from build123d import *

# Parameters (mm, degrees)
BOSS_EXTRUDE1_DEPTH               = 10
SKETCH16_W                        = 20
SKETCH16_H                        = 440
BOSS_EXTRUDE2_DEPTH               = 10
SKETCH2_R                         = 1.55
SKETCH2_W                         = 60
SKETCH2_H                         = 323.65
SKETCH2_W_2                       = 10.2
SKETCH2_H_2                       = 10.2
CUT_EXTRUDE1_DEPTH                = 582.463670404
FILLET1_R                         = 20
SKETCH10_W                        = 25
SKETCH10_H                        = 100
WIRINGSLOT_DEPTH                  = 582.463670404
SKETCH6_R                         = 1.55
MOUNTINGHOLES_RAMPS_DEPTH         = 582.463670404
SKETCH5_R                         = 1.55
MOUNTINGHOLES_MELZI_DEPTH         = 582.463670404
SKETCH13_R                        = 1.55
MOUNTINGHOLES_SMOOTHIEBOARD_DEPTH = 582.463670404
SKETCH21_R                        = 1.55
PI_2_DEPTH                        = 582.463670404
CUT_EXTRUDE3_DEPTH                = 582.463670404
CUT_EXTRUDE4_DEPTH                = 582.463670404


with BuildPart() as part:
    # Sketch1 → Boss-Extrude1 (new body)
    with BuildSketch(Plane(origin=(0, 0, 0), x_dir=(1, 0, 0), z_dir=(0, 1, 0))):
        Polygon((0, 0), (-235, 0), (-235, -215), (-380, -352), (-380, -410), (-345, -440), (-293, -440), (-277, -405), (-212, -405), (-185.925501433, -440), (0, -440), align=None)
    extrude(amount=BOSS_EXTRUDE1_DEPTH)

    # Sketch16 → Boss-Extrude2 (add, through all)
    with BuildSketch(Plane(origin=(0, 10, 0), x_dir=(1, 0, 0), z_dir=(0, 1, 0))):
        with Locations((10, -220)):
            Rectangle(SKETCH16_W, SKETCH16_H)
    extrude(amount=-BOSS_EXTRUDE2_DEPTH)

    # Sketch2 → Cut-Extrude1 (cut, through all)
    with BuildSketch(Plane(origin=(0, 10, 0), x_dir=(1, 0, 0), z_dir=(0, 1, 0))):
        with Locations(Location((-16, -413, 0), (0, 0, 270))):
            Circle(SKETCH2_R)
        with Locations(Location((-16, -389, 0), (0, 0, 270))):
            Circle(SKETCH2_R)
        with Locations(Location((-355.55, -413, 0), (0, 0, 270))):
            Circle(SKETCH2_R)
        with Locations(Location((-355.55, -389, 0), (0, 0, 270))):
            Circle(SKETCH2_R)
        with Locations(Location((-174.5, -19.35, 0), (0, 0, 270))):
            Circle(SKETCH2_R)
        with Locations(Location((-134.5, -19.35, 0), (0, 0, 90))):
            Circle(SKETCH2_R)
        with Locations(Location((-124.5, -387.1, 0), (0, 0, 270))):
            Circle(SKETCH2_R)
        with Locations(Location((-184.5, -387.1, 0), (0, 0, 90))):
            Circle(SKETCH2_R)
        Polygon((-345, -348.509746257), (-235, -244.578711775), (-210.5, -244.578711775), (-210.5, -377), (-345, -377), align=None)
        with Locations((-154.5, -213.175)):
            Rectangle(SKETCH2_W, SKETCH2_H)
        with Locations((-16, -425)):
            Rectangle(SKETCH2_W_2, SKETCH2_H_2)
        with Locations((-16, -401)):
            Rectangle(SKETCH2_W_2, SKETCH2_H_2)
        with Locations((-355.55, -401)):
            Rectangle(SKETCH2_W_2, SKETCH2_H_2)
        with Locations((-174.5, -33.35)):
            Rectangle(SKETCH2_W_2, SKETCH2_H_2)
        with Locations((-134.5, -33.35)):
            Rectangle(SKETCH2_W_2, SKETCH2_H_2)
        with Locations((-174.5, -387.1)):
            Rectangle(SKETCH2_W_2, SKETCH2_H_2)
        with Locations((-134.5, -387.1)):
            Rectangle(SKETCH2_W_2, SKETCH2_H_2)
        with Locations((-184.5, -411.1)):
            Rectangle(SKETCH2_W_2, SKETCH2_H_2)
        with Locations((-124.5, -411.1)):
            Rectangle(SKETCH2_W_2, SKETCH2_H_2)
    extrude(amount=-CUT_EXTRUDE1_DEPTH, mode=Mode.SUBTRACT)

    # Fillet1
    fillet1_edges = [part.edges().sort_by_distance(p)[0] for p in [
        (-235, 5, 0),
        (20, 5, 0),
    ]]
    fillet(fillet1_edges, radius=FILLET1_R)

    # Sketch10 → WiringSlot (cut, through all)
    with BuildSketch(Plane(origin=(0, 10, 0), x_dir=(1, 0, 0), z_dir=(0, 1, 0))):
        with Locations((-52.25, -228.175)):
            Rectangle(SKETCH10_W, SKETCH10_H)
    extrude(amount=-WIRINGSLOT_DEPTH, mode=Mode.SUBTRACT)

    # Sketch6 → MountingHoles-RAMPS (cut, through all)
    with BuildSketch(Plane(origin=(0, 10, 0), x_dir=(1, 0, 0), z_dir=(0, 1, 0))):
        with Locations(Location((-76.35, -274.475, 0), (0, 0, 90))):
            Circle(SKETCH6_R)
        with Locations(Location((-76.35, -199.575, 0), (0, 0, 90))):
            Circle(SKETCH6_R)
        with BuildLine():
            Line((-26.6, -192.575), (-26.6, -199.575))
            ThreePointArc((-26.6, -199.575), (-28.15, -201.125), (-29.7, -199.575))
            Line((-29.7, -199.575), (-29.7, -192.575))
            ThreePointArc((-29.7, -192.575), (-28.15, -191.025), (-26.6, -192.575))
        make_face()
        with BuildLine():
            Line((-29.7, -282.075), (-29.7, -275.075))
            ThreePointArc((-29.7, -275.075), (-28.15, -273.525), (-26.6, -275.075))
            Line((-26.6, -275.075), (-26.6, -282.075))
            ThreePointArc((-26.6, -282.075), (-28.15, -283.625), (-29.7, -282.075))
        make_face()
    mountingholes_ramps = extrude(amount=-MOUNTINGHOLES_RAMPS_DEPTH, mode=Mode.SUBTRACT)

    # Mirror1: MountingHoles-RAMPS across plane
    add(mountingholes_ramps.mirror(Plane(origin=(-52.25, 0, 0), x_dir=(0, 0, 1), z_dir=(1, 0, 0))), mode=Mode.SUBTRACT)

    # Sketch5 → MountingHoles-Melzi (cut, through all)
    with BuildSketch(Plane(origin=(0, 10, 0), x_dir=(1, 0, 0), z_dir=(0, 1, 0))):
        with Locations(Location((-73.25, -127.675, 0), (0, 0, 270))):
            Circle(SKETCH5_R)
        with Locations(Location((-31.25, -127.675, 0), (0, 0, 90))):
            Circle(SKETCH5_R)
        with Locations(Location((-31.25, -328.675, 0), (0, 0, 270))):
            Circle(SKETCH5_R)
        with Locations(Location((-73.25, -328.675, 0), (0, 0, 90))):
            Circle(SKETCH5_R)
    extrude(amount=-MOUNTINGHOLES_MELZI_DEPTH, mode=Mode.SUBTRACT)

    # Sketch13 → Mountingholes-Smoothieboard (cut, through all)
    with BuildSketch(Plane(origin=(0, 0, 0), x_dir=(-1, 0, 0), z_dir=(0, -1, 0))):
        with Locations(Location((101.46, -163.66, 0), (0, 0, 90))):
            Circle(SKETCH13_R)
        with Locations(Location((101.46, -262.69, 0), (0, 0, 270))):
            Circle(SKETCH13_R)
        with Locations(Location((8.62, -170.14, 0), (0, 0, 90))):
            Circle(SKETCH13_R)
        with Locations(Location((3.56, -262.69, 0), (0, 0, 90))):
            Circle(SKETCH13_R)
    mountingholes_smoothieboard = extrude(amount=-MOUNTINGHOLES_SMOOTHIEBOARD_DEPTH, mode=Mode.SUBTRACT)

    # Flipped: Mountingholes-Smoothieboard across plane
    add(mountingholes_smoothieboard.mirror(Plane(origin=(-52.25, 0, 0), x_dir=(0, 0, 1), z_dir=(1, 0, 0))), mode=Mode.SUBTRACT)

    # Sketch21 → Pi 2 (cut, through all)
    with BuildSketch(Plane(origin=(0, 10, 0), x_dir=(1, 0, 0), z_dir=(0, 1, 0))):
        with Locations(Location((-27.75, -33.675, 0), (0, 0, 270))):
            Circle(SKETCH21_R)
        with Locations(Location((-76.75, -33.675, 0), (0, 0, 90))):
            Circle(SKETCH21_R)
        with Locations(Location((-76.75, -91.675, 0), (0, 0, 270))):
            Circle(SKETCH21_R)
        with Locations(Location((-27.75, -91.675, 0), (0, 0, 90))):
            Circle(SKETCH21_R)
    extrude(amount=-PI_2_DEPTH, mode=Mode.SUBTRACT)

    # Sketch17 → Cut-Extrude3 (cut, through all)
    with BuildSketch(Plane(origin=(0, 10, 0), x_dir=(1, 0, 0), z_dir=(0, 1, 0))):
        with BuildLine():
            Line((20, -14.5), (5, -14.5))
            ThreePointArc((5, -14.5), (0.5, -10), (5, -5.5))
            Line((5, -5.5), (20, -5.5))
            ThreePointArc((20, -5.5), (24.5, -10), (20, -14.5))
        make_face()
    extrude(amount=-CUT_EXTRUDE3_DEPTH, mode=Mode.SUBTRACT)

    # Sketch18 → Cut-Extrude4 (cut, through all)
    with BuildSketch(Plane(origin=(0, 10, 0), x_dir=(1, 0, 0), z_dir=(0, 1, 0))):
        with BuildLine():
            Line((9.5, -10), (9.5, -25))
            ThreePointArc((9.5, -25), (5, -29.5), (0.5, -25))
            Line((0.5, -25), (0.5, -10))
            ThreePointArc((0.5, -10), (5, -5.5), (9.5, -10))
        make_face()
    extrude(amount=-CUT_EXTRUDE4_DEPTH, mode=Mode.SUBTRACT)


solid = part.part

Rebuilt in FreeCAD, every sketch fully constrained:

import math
import FreeCAD as App
import Part
import Sketcher


def edges_at(feature, points):
    """Names of the edges that pass closest to the given points."""
    edges = feature.Shape.Edges
    near = lambda p: min(range(len(edges)), key=lambda i: edges[i].distToShape(Part.Vertex(*p))[0])
    return sorted({f"Edge{near(p) + 1}" for p in points})


def add_polygon(sketch, points):
    """Adds a closed chain of lines whose ends are joined by coincident constraints."""
    first, n = sketch.GeometryCount, len(points)
    for a, b in zip(points, points[1:] + points[:1]):
        sketch.addGeometry(Part.LineSegment(App.Vector(*a, 0), App.Vector(*b, 0)), False)
    for i in range(n):
        sketch.addConstraint(Sketcher.Constraint("Coincident", first + i, 2, first + (i + 1) % n, 1))

doc = App.newDocument("Part")
body = doc.addObject("PartDesign::Body", "Body")

# Sketch on XZ plane
sketch1 = doc.addObject("Sketcher::SketchObject", "Sketch")
body.addObject(sketch1)
sketch1.AttachmentSupport = (doc.XZ_Plane, [""])
sketch1.MapMode = "FlatFace"
add_polygon(sketch1, [(0, 0), (-235, 0), (-235, 215), (-380, 352), (-380, 410), (-345, 440), (-293, 440), (-277, 405), (-212, 405), (-185.925501, 440), (0, 440)])  # lines 0-10
sketch1.addConstraint(Sketcher.Constraint("Horizontal", 0))
sketch1.addConstraint(Sketcher.Constraint("Vertical", 1))
sketch1.addConstraint(Sketcher.Constraint("Vertical", 3))
sketch1.addConstraint(Sketcher.Constraint("Horizontal", 5))
sketch1.addConstraint(Sketcher.Constraint("Horizontal", 7))
sketch1.addConstraint(Sketcher.Constraint("Horizontal", 9))
sketch1.addConstraint(Sketcher.Constraint("Vertical", 10))
sketch1.addConstraint(Sketcher.Constraint("Coincident", 10, 2, -1, 1))
sketch1.addConstraint(Sketcher.Constraint("Horizontal", 5, 2, 8, 2))
sketch1.addConstraint(Sketcher.Constraint("DistanceX", 0, 2, 0, 1, 235.0))
sketch1.addConstraint(Sketcher.Constraint("DistanceX", 5, 1, 5, 2, 52.0))
sketch1.addConstraint(Sketcher.Constraint("DistanceX", 7, 1, 7, 2, 65.0))
sketch1.addConstraint(Sketcher.Constraint("DistanceY", 1, 1, 1, 2, 215.0))
sketch1.addConstraint(Sketcher.Constraint("DistanceY", 3, 1, 3, 2, 58.0))
sketch1.addConstraint(Sketcher.Constraint("DistanceY", 10, 2, 10, 1, 440.0))
sketch1.addConstraint(Sketcher.Constraint("DistanceX", 2, 2, -1, 1, 380.0))
sketch1.addConstraint(Sketcher.Constraint("DistanceY", -1, 1, 2, 2, 352.0))
sketch1.addConstraint(Sketcher.Constraint("DistanceX", 4, 2, -1, 1, 345.0))
sketch1.addConstraint(Sketcher.Constraint("DistanceX", 6, 2, -1, 1, 277.0))
sketch1.addConstraint(Sketcher.Constraint("DistanceY", -1, 1, 6, 2, 405.0))
sketch1.addConstraint(Sketcher.Constraint("DistanceX", 9, 1, 9, 2, 185.925501))
pad1 = doc.addObject("PartDesign::Pad", "Pad")
body.addObject(pad1)
pad1.Profile = sketch1
pad1.Length = 10
pad1.Reversed = True

# Sketch on XZ plane
sketch2 = doc.addObject("Sketcher::SketchObject", "Sketch001")
body.addObject(sketch2)
sketch2.AttachmentSupport = (doc.XZ_Plane, [""])
sketch2.MapMode = "FlatFace"
sketch2.AttachmentOffset = App.Placement(App.Vector(0, 0, -10), App.Rotation())
add_polygon(sketch2, [(0, 0), (0, 440), (20, 440), (20, 0)])  # lines 0-3
sketch2.addConstraint(Sketcher.Constraint("Vertical", 0))
sketch2.addConstraint(Sketcher.Constraint("Horizontal", 1))
sketch2.addConstraint(Sketcher.Constraint("Vertical", 2))
sketch2.addConstraint(Sketcher.Constraint("Horizontal", 3))
sketch2.addConstraint(Sketcher.Constraint("Coincident", 3, 2, -1, 1))
sketch2.addConstraint(Sketcher.Constraint("DistanceX", 1, 1, 1, 2, 20.0))
sketch2.addConstraint(Sketcher.Constraint("DistanceY", 0, 1, 0, 2, 440.0))
pad2 = doc.addObject("PartDesign::Pad", "Pad001")
body.addObject(pad2)
pad2.Profile = sketch2
pad2.Length = 10

# Sketch on XZ plane
sketch3 = doc.addObject("Sketcher::SketchObject", "Sketch002")
body.addObject(sketch3)
sketch3.AttachmentSupport = (doc.XZ_Plane, [""])
sketch3.MapMode = "FlatFace"
sketch3.AttachmentOffset = App.Placement(App.Vector(0, 0, -10), App.Rotation())
sketch3.addGeometry(Part.Circle(App.Vector(-16, 413, 0), App.Vector(0, 0, 1), 1.55), False)  # 0
sketch3.addGeometry(Part.Circle(App.Vector(-16, 389, 0), App.Vector(0, 0, 1), 1.55), False)  # 1
sketch3.addGeometry(Part.Circle(App.Vector(-355.55, 413, 0), App.Vector(0, 0, 1), 1.55), False)  # 2
sketch3.addGeometry(Part.Circle(App.Vector(-355.55, 389, 0), App.Vector(0, 0, 1), 1.55), False)  # 3
sketch3.addGeometry(Part.Circle(App.Vector(-174.5, 19.35, 0), App.Vector(0, 0, 1), 1.55), False)  # 4
sketch3.addGeometry(Part.Circle(App.Vector(-134.5, 19.35, 0), App.Vector(0, 0, 1), 1.55), False)  # 5
sketch3.addGeometry(Part.Circle(App.Vector(-124.5, 387.1, 0), App.Vector(0, 0, 1), 1.55), False)  # 6
sketch3.addGeometry(Part.Circle(App.Vector(-184.5, 387.1, 0), App.Vector(0, 0, 1), 1.55), False)  # 7
add_polygon(sketch3, [(-235, 244.578712), (-345, 348.509746), (-345, 377), (-210.5, 377), (-210.5, 244.578712)])  # lines 8-12
add_polygon(sketch3, [(-184.5, 51.35), (-184.5, 375), (-124.5, 375), (-124.5, 51.35)])  # lines 13-16
add_polygon(sketch3, [(-21.1, 419.9), (-21.1, 430.1), (-10.9, 430.1), (-10.9, 419.9)])  # lines 17-20
add_polygon(sketch3, [(-21.1, 395.9), (-21.1, 406.1), (-10.9, 406.1), (-10.9, 395.9)])  # lines 21-24
add_polygon(sketch3, [(-360.65, 395.9), (-360.65, 406.1), (-350.45, 406.1), (-350.45, 395.9)])  # lines 25-28
add_polygon(sketch3, [(-179.6, 28.25), (-179.6, 38.45), (-169.4, 38.45), (-169.4, 28.25)])  # lines 29-32
add_polygon(sketch3, [(-139.6, 28.25), (-139.6, 38.45), (-129.4, 38.45), (-129.4, 28.25)])  # lines 33-36
add_polygon(sketch3, [(-179.6, 382), (-179.6, 392.2), (-169.4, 392.2), (-169.4, 382)])  # lines 37-40
add_polygon(sketch3, [(-139.6, 382), (-139.6, 392.2), (-129.4, 392.2), (-129.4, 382)])  # lines 41-44
add_polygon(sketch3, [(-189.6, 406), (-189.6, 416.2), (-179.4, 416.2), (-179.4, 406)])  # lines 45-48
add_polygon(sketch3, [(-129.6, 406), (-129.6, 416.2), (-119.4, 416.2), (-119.4, 406)])  # lines 49-52
sketch3.addConstraint(Sketcher.Constraint("Vertical", 9))
sketch3.addConstraint(Sketcher.Constraint("Horizontal", 10))
sketch3.addConstraint(Sketcher.Constraint("Vertical", 11))
sketch3.addConstraint(Sketcher.Constraint("Horizontal", 12))
sketch3.addConstraint(Sketcher.Constraint("Vertical", 13))
sketch3.addConstraint(Sketcher.Constraint("Horizontal", 14))
sketch3.addConstraint(Sketcher.Constraint("Vertical", 15))
sketch3.addConstraint(Sketcher.Constraint("Horizontal", 16))
sketch3.addConstraint(Sketcher.Constraint("Vertical", 17))
sketch3.addConstraint(Sketcher.Constraint("Horizontal", 18))
sketch3.addConstraint(Sketcher.Constraint("Vertical", 19))
sketch3.addConstraint(Sketcher.Constraint("Horizontal", 20))
sketch3.addConstraint(Sketcher.Constraint("Vertical", 21))
sketch3.addConstraint(Sketcher.Constraint("Horizontal", 22))
sketch3.addConstraint(Sketcher.Constraint("Vertical", 23))
sketch3.addConstraint(Sketcher.Constraint("Horizontal", 24))
sketch3.addConstraint(Sketcher.Constraint("Vertical", 25))
sketch3.addConstraint(Sketcher.Constraint("Horizontal", 26))
sketch3.addConstraint(Sketcher.Constraint("Vertical", 27))
sketch3.addConstraint(Sketcher.Constraint("Horizontal", 28))
sketch3.addConstraint(Sketcher.Constraint("Vertical", 29))
sketch3.addConstraint(Sketcher.Constraint("Horizontal", 30))
sketch3.addConstraint(Sketcher.Constraint("Vertical", 31))
sketch3.addConstraint(Sketcher.Constraint("Horizontal", 32))
sketch3.addConstraint(Sketcher.Constraint("Vertical", 33))
sketch3.addConstraint(Sketcher.Constraint("Horizontal", 34))
sketch3.addConstraint(Sketcher.Constraint("Vertical", 35))
sketch3.addConstraint(Sketcher.Constraint("Horizontal", 36))
sketch3.addConstraint(Sketcher.Constraint("Vertical", 37))
sketch3.addConstraint(Sketcher.Constraint("Horizontal", 38))
sketch3.addConstraint(Sketcher.Constraint("Vertical", 39))
sketch3.addConstraint(Sketcher.Constraint("Horizontal", 40))
sketch3.addConstraint(Sketcher.Constraint("Vertical", 41))
sketch3.addConstraint(Sketcher.Constraint("Horizontal", 42))
sketch3.addConstraint(Sketcher.Constraint("Vertical", 43))
sketch3.addConstraint(Sketcher.Constraint("Horizontal", 44))
sketch3.addConstraint(Sketcher.Constraint("Vertical", 45))
sketch3.addConstraint(Sketcher.Constraint("Horizontal", 46))
sketch3.addConstraint(Sketcher.Constraint("Vertical", 47))
sketch3.addConstraint(Sketcher.Constraint("Horizontal", 48))
sketch3.addConstraint(Sketcher.Constraint("Vertical", 49))
sketch3.addConstraint(Sketcher.Constraint("Horizontal", 50))
sketch3.addConstraint(Sketcher.Constraint("Vertical", 51))
sketch3.addConstraint(Sketcher.Constraint("Horizontal", 52))
sketch3.addConstraint(Sketcher.Constraint("Equal", 0, 1))
sketch3.addConstraint(Sketcher.Constraint("Equal", 1, 2))
sketch3.addConstraint(Sketcher.Constraint("Equal", 2, 3))
sketch3.addConstraint(Sketcher.Constraint("Equal", 3, 4))
sketch3.addConstraint(Sketcher.Constraint("Equal", 4, 5))
sketch3.addConstraint(Sketcher.Constraint("Equal", 5, 6))
sketch3.addConstraint(Sketcher.Constraint("Equal", 6, 7))
sketch3.addConstraint(Sketcher.Constraint("Horizontal", 0, 3, 2, 3))
sketch3.addConstraint(Sketcher.Constraint("Horizontal", 1, 3, 3, 3))
sketch3.addConstraint(Sketcher.Constraint("Horizontal", 4, 3, 5, 3))
sketch3.addConstraint(Sketcher.Constraint("Horizontal", 6, 3, 7, 3))
sketch3.addConstraint(Sketcher.Constraint("Horizontal", 22, 2, 25, 2))
sketch3.addConstraint(Sketcher.Constraint("Horizontal", 24, 2, 27, 2))
sketch3.addConstraint(Sketcher.Constraint("Horizontal", 30, 2, 33, 2))
sketch3.addConstraint(Sketcher.Constraint("Horizontal", 32, 2, 35, 2))
sketch3.addConstraint(Sketcher.Constraint("Horizontal", 38, 2, 41, 2))
sketch3.addConstraint(Sketcher.Constraint("Horizontal", 40, 2, 43, 2))
sketch3.addConstraint(Sketcher.Constraint("Horizontal", 46, 2, 49, 2))
sketch3.addConstraint(Sketcher.Constraint("Horizontal", 48, 2, 51, 2))
sketch3.addConstraint(Sketcher.Constraint("Vertical", 0, 3, 1, 3))
sketch3.addConstraint(Sketcher.Constraint("Vertical", 2, 3, 3, 3))
sketch3.addConstraint(Sketcher.Constraint("Vertical", 7, 3, 13, 2))
sketch3.addConstraint(Sketcher.Constraint("Vertical", 6, 3, 14, 2))
sketch3.addConstraint(Sketcher.Constraint("Vertical", 20, 2, 21, 2))
sketch3.addConstraint(Sketcher.Constraint("Vertical", 19, 2, 22, 2))
sketch3.addConstraint(Sketcher.Constraint("Vertical", 32, 2, 37, 2))
sketch3.addConstraint(Sketcher.Constraint("Vertical", 31, 2, 38, 2))
sketch3.addConstraint(Sketcher.Constraint("Vertical", 36, 2, 41, 2))
sketch3.addConstraint(Sketcher.Constraint("Vertical", 35, 2, 42, 2))
sketch3.addConstraint(Sketcher.Constraint("Equal", 24, 26))
sketch3.addConstraint(Sketcher.Constraint("Equal", 28, 30))
sketch3.addConstraint(Sketcher.Constraint("Equal", 32, 34))
sketch3.addConstraint(Sketcher.Constraint("Equal", 44, 46))
sketch3.addConstraint(Sketcher.Constraint("Equal", 48, 50))
sketch3.addConstraint(Sketcher.Constraint("Equal", 52, 17))
sketch3.addConstraint(Sketcher.Constraint("Equal", 19, 21))
sketch3.addConstraint(Sketcher.Constraint("Equal", 27, 29))
sketch3.addConstraint(Sketcher.Constraint("Equal", 35, 37))
sketch3.addConstraint(Sketcher.Constraint("Equal", 43, 45))
sketch3.addConstraint(Sketcher.Constraint("Diameter", 0, 3.1))
sketch3.addConstraint(Sketcher.Constraint("DistanceX", 14, 1, 14, 2, 60.0))
sketch3.addConstraint(Sketcher.Constraint("DistanceX", 10, 1, 10, 2, 134.5))
sketch3.addConstraint(Sketcher.Constraint("DistanceX", 12, 2, 12, 1, 24.5))
sketch3.addConstraint(Sketcher.Constraint("DistanceX", 18, 1, 18, 2, 10.2))
sketch3.addConstraint(Sketcher.Constraint("DistanceX", 0, 3, -1, 1, 16.0))
sketch3.addConstraint(Sketcher.Constraint("DistanceY", -1, 1, 0, 3, 413.0))
sketch3.addConstraint(Sketcher.Constraint("DistanceY", -1, 1, 1, 3, 389.0))
sketch3.addConstraint(Sketcher.Constraint("DistanceX", 8, 2, -1, 1, 345.0))
sketch3.addConstraint(Sketcher.Constraint("DistanceY", -1, 1, 9, 2, 377.0))
sketch3.addConstraint(Sketcher.Constraint("DistanceY", -1, 1, 13, 2, 375.0))
sketch3.addConstraint(Sketcher.Constraint("DistanceY", -1, 1, 39, 2, 382.0))
sketch3.addConstraint(Sketcher.Constraint("DistanceY", -1, 1, 47, 2, 406.0))
sketch3.addConstraint(Sketcher.Constraint("DistanceX", 4, 3, 5, 3, 40.0))
sketch3.addConstraint(Sketcher.Constraint("DistanceX", 5, 3, 6, 3, 10.0))
sketch3.addConstraint(Sketcher.Constraint("DistanceX", 10, 2, 7, 3, 26.0))
sketch3.addConstraint(Sketcher.Constraint("DistanceY", 5, 3, 15, 2, 32.0))
sketch3.addConstraint(Sketcher.Constraint("DistanceY", 6, 3, 17, 2, 43.0))
sketch3.addConstraint(Sketcher.Constraint("DistanceY", 21, 2, 17, 2, 24.0))
sketch3.addConstraint(Sketcher.Constraint("DistanceX", 30, 2, 34, 2, 40.0))
sketch3.addConstraint(Sketcher.Constraint("DistanceX", 45, 2, 37, 2, 10.0))
sketch3.addConstraint(Sketcher.Constraint("DistanceX", 41, 2, 49, 2, 10.0))
sketch3.addConstraint(Sketcher.Constraint("DistanceY", 13, 1, 13, 2, 323.65))
sketch3.addConstraint(Sketcher.Constraint("DistanceY", -1, 1, 6, 3, 387.1))
sketch3.addConstraint(Sketcher.Constraint("DistanceX", 17, 2, -1, 1, 21.1))
sketch3.addConstraint(Sketcher.Constraint("DistanceX", 29, 2, -1, 1, 179.6))
sketch3.addConstraint(Sketcher.Constraint("DistanceX", 25, 2, 2, 3, 5.1))
sketch3.addConstraint(Sketcher.Constraint("DistanceY", 29, 2, 16, 2, 12.9))
sketch3.addConstraint(Sketcher.Constraint("DistanceX", 2, 3, -1, 1, 355.55))
sketch3.addConstraint(Sketcher.Constraint("DistanceY", 11, 2, 11, 1, 132.421288))
sketch3.addConstraint(Sketcher.Constraint("DistanceY", 9, 1, 9, 2, 28.490254))
pocket1 = doc.addObject("PartDesign::Pocket", "Pocket")
body.addObject(pocket1)
pocket1.Profile = sketch3
pocket1.Type = "ThroughAll"
pocket1.Reversed = True
doc.recompute()

fillet = doc.addObject("PartDesign::Fillet", "Fillet")
body.addObject(fillet)
fillet.Base = (pocket1, edges_at(pocket1, [(-235, 5, 0), (20, 5, 0)]))
fillet.Radius = 20

# Sketch on XZ plane
sketch4 = doc.addObject("Sketcher::SketchObject", "Sketch003")
body.addObject(sketch4)
sketch4.AttachmentSupport = (doc.XZ_Plane, [""])
sketch4.MapMode = "FlatFace"
sketch4.AttachmentOffset = App.Placement(App.Vector(0, 0, -10), App.Rotation())
add_polygon(sketch4, [(-64.75, 178.175), (-64.75, 278.175), (-39.75, 278.175), (-39.75, 178.175)])  # lines 0-3
sketch4.addConstraint(Sketcher.Constraint("Vertical", 0))
sketch4.addConstraint(Sketcher.Constraint("Horizontal", 1))
sketch4.addConstraint(Sketcher.Constraint("Vertical", 2))
sketch4.addConstraint(Sketcher.Constraint("Horizontal", 3))
sketch4.addConstraint(Sketcher.Constraint("DistanceX", 1, 1, 1, 2, 25.0))
sketch4.addConstraint(Sketcher.Constraint("DistanceY", 0, 1, 0, 2, 100.0))
sketch4.addConstraint(Sketcher.Constraint("DistanceX", 0, 2, -1, 1, 64.75))
sketch4.addConstraint(Sketcher.Constraint("DistanceY", -1, 1, 0, 2, 278.175))
pocket2 = doc.addObject("PartDesign::Pocket", "Pocket001")
body.addObject(pocket2)
pocket2.Profile = sketch4
pocket2.Type = "ThroughAll"
pocket2.Reversed = True

# Sketch on XZ plane
sketch5 = doc.addObject("Sketcher::SketchObject", "Sketch004")
body.addObject(sketch5)
sketch5.AttachmentSupport = (doc.XZ_Plane, [""])
sketch5.MapMode = "FlatFace"
sketch5.AttachmentOffset = App.Placement(App.Vector(0, 0, -10), App.Rotation())
sketch5.addGeometry(Part.Circle(App.Vector(-76.35, 274.475, 0), App.Vector(0, 0, 1), 1.55), False)
sketch5.addGeometry(Part.Circle(App.Vector(-76.35, 199.575, 0), App.Vector(0, 0, 1), 1.55), False)
sketch5.addGeometry(Part.LineSegment(App.Vector(-26.6, 199.575, 0), App.Vector(-26.6, 192.575, 0)), False)
sketch5.addGeometry(Part.ArcOfCircle(Part.Circle(App.Vector(-28.15, 192.575, 0), App.Vector(0, 0, 1), 1.55), math.radians(180), math.radians(360)), False)
sketch5.addGeometry(Part.LineSegment(App.Vector(-29.7, 192.575, 0), App.Vector(-29.7, 199.575, 0)), False)
sketch5.addGeometry(Part.ArcOfCircle(Part.Circle(App.Vector(-28.15, 199.575, 0), App.Vector(0, 0, 1), 1.55), math.radians(0), math.radians(180)), False)
sketch5.addGeometry(Part.LineSegment(App.Vector(-29.7, 275.075, 0), App.Vector(-29.7, 282.075, 0)), False)
sketch5.addGeometry(Part.ArcOfCircle(Part.Circle(App.Vector(-28.15, 282.075, 0), App.Vector(0, 0, 1), 1.55), math.radians(0), math.radians(180)), False)
sketch5.addGeometry(Part.LineSegment(App.Vector(-26.6, 282.075, 0), App.Vector(-26.6, 275.075, 0)), False)
sketch5.addGeometry(Part.ArcOfCircle(Part.Circle(App.Vector(-28.15, 275.075, 0), App.Vector(0, 0, 1), 1.55), math.radians(180), math.radians(360)), False)
sketch5.addConstraint(Sketcher.Constraint("Tangent", 2, 2, 3, 2))
sketch5.addConstraint(Sketcher.Constraint("Tangent", 3, 1, 4, 1))
sketch5.addConstraint(Sketcher.Constraint("Tangent", 4, 2, 5, 2))
sketch5.addConstraint(Sketcher.Constraint("Tangent", 5, 1, 2, 1))
sketch5.addConstraint(Sketcher.Constraint("Tangent", 6, 2, 7, 2))
sketch5.addConstraint(Sketcher.Constraint("Tangent", 7, 1, 8, 1))
sketch5.addConstraint(Sketcher.Constraint("Tangent", 8, 2, 9, 2))
sketch5.addConstraint(Sketcher.Constraint("Tangent", 9, 1, 6, 1))
sketch5.addConstraint(Sketcher.Constraint("Vertical", 2))
sketch5.addConstraint(Sketcher.Constraint("Vertical", 4))
sketch5.addConstraint(Sketcher.Constraint("Vertical", 6))
sketch5.addConstraint(Sketcher.Constraint("Vertical", 8))
sketch5.addConstraint(Sketcher.Constraint("Equal", 0, 1))
sketch5.addConstraint(Sketcher.Constraint("Equal", 1, 3))
sketch5.addConstraint(Sketcher.Constraint("Equal", 5, 7))
sketch5.addConstraint(Sketcher.Constraint("Horizontal", 1, 3, 5, 3))
sketch5.addConstraint(Sketcher.Constraint("Vertical", 0, 3, 1, 3))
sketch5.addConstraint(Sketcher.Constraint("Vertical", 5, 3, 7, 3))
sketch5.addConstraint(Sketcher.Constraint("Equal", 4, 6))
sketch5.addConstraint(Sketcher.Constraint("Diameter", 0, 3.1))
sketch5.addConstraint(Sketcher.Constraint("DistanceY", 2, 2, 2, 1, 7.0))
sketch5.addConstraint(Sketcher.Constraint("DistanceX", 2, 2, -1, 1, 26.6))
sketch5.addConstraint(Sketcher.Constraint("DistanceY", 1, 3, 0, 3, 74.9))
sketch5.addConstraint(Sketcher.Constraint("DistanceX", 1, 3, 3, 3, 48.2))
sketch5.addConstraint(Sketcher.Constraint("DistanceY", 0, 3, 7, 3, 7.6))
sketch5.addConstraint(Sketcher.Constraint("DistanceY", -1, 1, 0, 3, 274.475))
pocket3 = doc.addObject("PartDesign::Pocket", "Pocket002")
body.addObject(pocket3)
pocket3.Profile = sketch5
pocket3.Type = "ThroughAll"
pocket3.Reversed = True
doc.recompute()

datumplane = doc.addObject("PartDesign::Plane", "DatumPlane")
body.addObject(datumplane)
datumplane.AttachmentSupport = (doc.YZ_Plane, [""])
datumplane.MapMode = "FlatFace"
datumplane.AttachmentOffset = App.Placement(App.Vector(0, 0, -52.25), App.Rotation())
mirrored = doc.addObject("PartDesign::Mirrored", "Mirrored")
body.addObject(mirrored)
mirrored.Originals = [pocket3]
mirrored.MirrorPlane = (datumplane, [""])
body.Tip = mirrored

# Sketch on XZ plane
sketch6 = doc.addObject("Sketcher::SketchObject", "Sketch005")
body.addObject(sketch6)
sketch6.AttachmentSupport = (doc.XZ_Plane, [""])
sketch6.MapMode = "FlatFace"
sketch6.AttachmentOffset = App.Placement(App.Vector(0, 0, -10), App.Rotation())
sketch6.addGeometry(Part.Circle(App.Vector(-73.25, 127.675, 0), App.Vector(0, 0, 1), 1.55), False)
sketch6.addGeometry(Part.Circle(App.Vector(-31.25, 127.675, 0), App.Vector(0, 0, 1), 1.55), False)
sketch6.addGeometry(Part.Circle(App.Vector(-31.25, 328.675, 0), App.Vector(0, 0, 1), 1.55), False)
sketch6.addGeometry(Part.Circle(App.Vector(-73.25, 328.675, 0), App.Vector(0, 0, 1), 1.55), False)
sketch6.addConstraint(Sketcher.Constraint("Equal", 0, 1))
sketch6.addConstraint(Sketcher.Constraint("Equal", 1, 2))
sketch6.addConstraint(Sketcher.Constraint("Equal", 2, 3))
sketch6.addConstraint(Sketcher.Constraint("Horizontal", 0, 3, 1, 3))
sketch6.addConstraint(Sketcher.Constraint("Horizontal", 2, 3, 3, 3))
sketch6.addConstraint(Sketcher.Constraint("Vertical", 1, 3, 2, 3))
sketch6.addConstraint(Sketcher.Constraint("Vertical", 0, 3, 3, 3))
sketch6.addConstraint(Sketcher.Constraint("Diameter", 0, 3.1))
sketch6.addConstraint(Sketcher.Constraint("DistanceX", 0, 3, 1, 3, 42.0))
sketch6.addConstraint(Sketcher.Constraint("DistanceY", 1, 3, 2, 3, 201.0))
sketch6.addConstraint(Sketcher.Constraint("DistanceX", 0, 3, -1, 1, 73.25))
sketch6.addConstraint(Sketcher.Constraint("DistanceY", -1, 1, 0, 3, 127.675))
pocket4 = doc.addObject("PartDesign::Pocket", "Pocket003")
body.addObject(pocket4)
pocket4.Profile = sketch6
pocket4.Type = "ThroughAll"
pocket4.Reversed = True

# Sketch on XZ plane
sketch7 = doc.addObject("Sketcher::SketchObject", "Sketch006")
body.addObject(sketch7)
sketch7.AttachmentSupport = (doc.XZ_Plane, [""])
sketch7.MapMode = "FlatFace"
sketch7.addGeometry(Part.Circle(App.Vector(-101.46, 163.66, 0), App.Vector(0, 0, 1), 1.55), False)
sketch7.addGeometry(Part.Circle(App.Vector(-101.46, 262.69, 0), App.Vector(0, 0, 1), 1.55), False)
sketch7.addGeometry(Part.Circle(App.Vector(-8.62, 170.14, 0), App.Vector(0, 0, 1), 1.55), False)
sketch7.addGeometry(Part.Circle(App.Vector(-3.56, 262.69, 0), App.Vector(0, 0, 1), 1.55), False)
sketch7.addConstraint(Sketcher.Constraint("Equal", 0, 1))
sketch7.addConstraint(Sketcher.Constraint("Equal", 1, 2))
sketch7.addConstraint(Sketcher.Constraint("Equal", 2, 3))
sketch7.addConstraint(Sketcher.Constraint("Horizontal", 1, 3, 3, 3))
sketch7.addConstraint(Sketcher.Constraint("Vertical", 0, 3, 1, 3))
sketch7.addConstraint(Sketcher.Constraint("Diameter", 0, 3.1))
sketch7.addConstraint(Sketcher.Constraint("DistanceX", 1, 3, 3, 3, 97.9))
sketch7.addConstraint(Sketcher.Constraint("DistanceX", 0, 3, -1, 1, 101.46))
sketch7.addConstraint(Sketcher.Constraint("DistanceY", -1, 1, 0, 3, 163.66))
sketch7.addConstraint(Sketcher.Constraint("DistanceY", -1, 1, 1, 3, 262.69))
sketch7.addConstraint(Sketcher.Constraint("DistanceX", 2, 3, -1, 1, 8.62))
sketch7.addConstraint(Sketcher.Constraint("DistanceY", -1, 1, 2, 3, 170.14))
pocket5 = doc.addObject("PartDesign::Pocket", "Pocket004")
body.addObject(pocket5)
pocket5.Profile = sketch7
pocket5.Type = "ThroughAll"
doc.recompute()

datumplane2 = doc.addObject("PartDesign::Plane", "DatumPlane001")
body.addObject(datumplane2)
datumplane2.AttachmentSupport = (doc.YZ_Plane, [""])
datumplane2.MapMode = "FlatFace"
datumplane2.AttachmentOffset = App.Placement(App.Vector(0, 0, -52.25), App.Rotation())
mirrored2 = doc.addObject("PartDesign::Mirrored", "Mirrored001")
body.addObject(mirrored2)
mirrored2.Originals = [pocket5]
mirrored2.MirrorPlane = (datumplane2, [""])
body.Tip = mirrored2

# Sketch on XZ plane
sketch8 = doc.addObject("Sketcher::SketchObject", "Sketch007")
body.addObject(sketch8)
sketch8.AttachmentSupport = (doc.XZ_Plane, [""])
sketch8.MapMode = "FlatFace"
sketch8.AttachmentOffset = App.Placement(App.Vector(0, 0, -10), App.Rotation())
sketch8.addGeometry(Part.Circle(App.Vector(-27.75, 33.675, 0), App.Vector(0, 0, 1), 1.55), False)
sketch8.addGeometry(Part.Circle(App.Vector(-76.75, 33.675, 0), App.Vector(0, 0, 1), 1.55), False)
sketch8.addGeometry(Part.Circle(App.Vector(-76.75, 91.675, 0), App.Vector(0, 0, 1), 1.55), False)
sketch8.addGeometry(Part.Circle(App.Vector(-27.75, 91.675, 0), App.Vector(0, 0, 1), 1.55), False)
sketch8.addConstraint(Sketcher.Constraint("Equal", 0, 1))
sketch8.addConstraint(Sketcher.Constraint("Equal", 1, 2))
sketch8.addConstraint(Sketcher.Constraint("Equal", 2, 3))
sketch8.addConstraint(Sketcher.Constraint("Horizontal", 0, 3, 1, 3))
sketch8.addConstraint(Sketcher.Constraint("Horizontal", 2, 3, 3, 3))
sketch8.addConstraint(Sketcher.Constraint("Vertical", 1, 3, 2, 3))
sketch8.addConstraint(Sketcher.Constraint("Vertical", 0, 3, 3, 3))
sketch8.addConstraint(Sketcher.Constraint("Diameter", 0, 3.1))
sketch8.addConstraint(Sketcher.Constraint("DistanceX", 1, 3, 0, 3, 49.0))
sketch8.addConstraint(Sketcher.Constraint("DistanceY", 1, 3, 2, 3, 58.0))
sketch8.addConstraint(Sketcher.Constraint("DistanceX", 0, 3, -1, 1, 27.75))
sketch8.addConstraint(Sketcher.Constraint("DistanceY", -1, 1, 0, 3, 33.675))
pocket6 = doc.addObject("PartDesign::Pocket", "Pocket005")
body.addObject(pocket6)
pocket6.Profile = sketch8
pocket6.Type = "ThroughAll"
pocket6.Reversed = True

# Sketch on XZ plane
sketch9 = doc.addObject("Sketcher::SketchObject", "Sketch008")
body.addObject(sketch9)
sketch9.AttachmentSupport = (doc.XZ_Plane, [""])
sketch9.MapMode = "FlatFace"
sketch9.AttachmentOffset = App.Placement(App.Vector(0, 0, -10), App.Rotation())
sketch9.addGeometry(Part.LineSegment(App.Vector(5, 14.5, 0), App.Vector(20, 14.5, 0)), False)
sketch9.addGeometry(Part.ArcOfCircle(Part.Circle(App.Vector(20, 10, 0), App.Vector(0, 0, 1), 4.5), math.radians(-90), math.radians(90)), False)
sketch9.addGeometry(Part.LineSegment(App.Vector(20, 5.5, 0), App.Vector(5, 5.5, 0)), False)
sketch9.addGeometry(Part.ArcOfCircle(Part.Circle(App.Vector(5, 10, 0), App.Vector(0, 0, 1), 4.5), math.radians(90), math.radians(270)), False)
sketch9.addConstraint(Sketcher.Constraint("Tangent", 0, 2, 1, 2))
sketch9.addConstraint(Sketcher.Constraint("Tangent", 1, 1, 2, 1))
sketch9.addConstraint(Sketcher.Constraint("Tangent", 2, 2, 3, 2))
sketch9.addConstraint(Sketcher.Constraint("Tangent", 3, 1, 0, 1))
sketch9.addConstraint(Sketcher.Constraint("Horizontal", 0))
sketch9.addConstraint(Sketcher.Constraint("Horizontal", 2))
sketch9.addConstraint(Sketcher.Constraint("Radius", 1, 4.5))
sketch9.addConstraint(Sketcher.Constraint("DistanceX", 0, 1, 0, 2, 15.0))
sketch9.addConstraint(Sketcher.Constraint("DistanceX", -1, 1, 1, 3, 20.0))
sketch9.addConstraint(Sketcher.Constraint("DistanceY", -1, 1, 1, 3, 10.0))
pocket7 = doc.addObject("PartDesign::Pocket", "Pocket006")
body.addObject(pocket7)
pocket7.Profile = sketch9
pocket7.Type = "ThroughAll"
pocket7.Reversed = True

# Sketch on XZ plane
sketch10 = doc.addObject("Sketcher::SketchObject", "Sketch009")
body.addObject(sketch10)
sketch10.AttachmentSupport = (doc.XZ_Plane, [""])
sketch10.MapMode = "FlatFace"
sketch10.AttachmentOffset = App.Placement(App.Vector(0, 0, -10), App.Rotation())
sketch10.addGeometry(Part.LineSegment(App.Vector(9.5, 25, 0), App.Vector(9.5, 10, 0)), False)
sketch10.addGeometry(Part.ArcOfCircle(Part.Circle(App.Vector(5, 10, 0), App.Vector(0, 0, 1), 4.5), math.radians(180), math.radians(360)), False)
sketch10.addGeometry(Part.LineSegment(App.Vector(0.5, 10, 0), App.Vector(0.5, 25, 0)), False)
sketch10.addGeometry(Part.ArcOfCircle(Part.Circle(App.Vector(5, 25, 0), App.Vector(0, 0, 1), 4.5), math.radians(0), math.radians(180)), False)
sketch10.addConstraint(Sketcher.Constraint("Tangent", 0, 2, 1, 2))
sketch10.addConstraint(Sketcher.Constraint("Tangent", 1, 1, 2, 1))
sketch10.addConstraint(Sketcher.Constraint("Tangent", 2, 2, 3, 2))
sketch10.addConstraint(Sketcher.Constraint("Tangent", 3, 1, 0, 1))
sketch10.addConstraint(Sketcher.Constraint("Vertical", 0))
sketch10.addConstraint(Sketcher.Constraint("Vertical", 2))
sketch10.addConstraint(Sketcher.Constraint("Radius", 1, 4.5))
sketch10.addConstraint(Sketcher.Constraint("DistanceY", 0, 2, 0, 1, 15.0))
sketch10.addConstraint(Sketcher.Constraint("DistanceX", -1, 1, 1, 3, 5.0))
sketch10.addConstraint(Sketcher.Constraint("DistanceY", -1, 1, 1, 3, 10.0))
pocket8 = doc.addObject("PartDesign::Pocket", "Pocket007")
body.addObject(pocket8)
pocket8.Profile = sketch10
pocket8.Type = "ThroughAll"
pocket8.Reversed = True

doc.recompute()
